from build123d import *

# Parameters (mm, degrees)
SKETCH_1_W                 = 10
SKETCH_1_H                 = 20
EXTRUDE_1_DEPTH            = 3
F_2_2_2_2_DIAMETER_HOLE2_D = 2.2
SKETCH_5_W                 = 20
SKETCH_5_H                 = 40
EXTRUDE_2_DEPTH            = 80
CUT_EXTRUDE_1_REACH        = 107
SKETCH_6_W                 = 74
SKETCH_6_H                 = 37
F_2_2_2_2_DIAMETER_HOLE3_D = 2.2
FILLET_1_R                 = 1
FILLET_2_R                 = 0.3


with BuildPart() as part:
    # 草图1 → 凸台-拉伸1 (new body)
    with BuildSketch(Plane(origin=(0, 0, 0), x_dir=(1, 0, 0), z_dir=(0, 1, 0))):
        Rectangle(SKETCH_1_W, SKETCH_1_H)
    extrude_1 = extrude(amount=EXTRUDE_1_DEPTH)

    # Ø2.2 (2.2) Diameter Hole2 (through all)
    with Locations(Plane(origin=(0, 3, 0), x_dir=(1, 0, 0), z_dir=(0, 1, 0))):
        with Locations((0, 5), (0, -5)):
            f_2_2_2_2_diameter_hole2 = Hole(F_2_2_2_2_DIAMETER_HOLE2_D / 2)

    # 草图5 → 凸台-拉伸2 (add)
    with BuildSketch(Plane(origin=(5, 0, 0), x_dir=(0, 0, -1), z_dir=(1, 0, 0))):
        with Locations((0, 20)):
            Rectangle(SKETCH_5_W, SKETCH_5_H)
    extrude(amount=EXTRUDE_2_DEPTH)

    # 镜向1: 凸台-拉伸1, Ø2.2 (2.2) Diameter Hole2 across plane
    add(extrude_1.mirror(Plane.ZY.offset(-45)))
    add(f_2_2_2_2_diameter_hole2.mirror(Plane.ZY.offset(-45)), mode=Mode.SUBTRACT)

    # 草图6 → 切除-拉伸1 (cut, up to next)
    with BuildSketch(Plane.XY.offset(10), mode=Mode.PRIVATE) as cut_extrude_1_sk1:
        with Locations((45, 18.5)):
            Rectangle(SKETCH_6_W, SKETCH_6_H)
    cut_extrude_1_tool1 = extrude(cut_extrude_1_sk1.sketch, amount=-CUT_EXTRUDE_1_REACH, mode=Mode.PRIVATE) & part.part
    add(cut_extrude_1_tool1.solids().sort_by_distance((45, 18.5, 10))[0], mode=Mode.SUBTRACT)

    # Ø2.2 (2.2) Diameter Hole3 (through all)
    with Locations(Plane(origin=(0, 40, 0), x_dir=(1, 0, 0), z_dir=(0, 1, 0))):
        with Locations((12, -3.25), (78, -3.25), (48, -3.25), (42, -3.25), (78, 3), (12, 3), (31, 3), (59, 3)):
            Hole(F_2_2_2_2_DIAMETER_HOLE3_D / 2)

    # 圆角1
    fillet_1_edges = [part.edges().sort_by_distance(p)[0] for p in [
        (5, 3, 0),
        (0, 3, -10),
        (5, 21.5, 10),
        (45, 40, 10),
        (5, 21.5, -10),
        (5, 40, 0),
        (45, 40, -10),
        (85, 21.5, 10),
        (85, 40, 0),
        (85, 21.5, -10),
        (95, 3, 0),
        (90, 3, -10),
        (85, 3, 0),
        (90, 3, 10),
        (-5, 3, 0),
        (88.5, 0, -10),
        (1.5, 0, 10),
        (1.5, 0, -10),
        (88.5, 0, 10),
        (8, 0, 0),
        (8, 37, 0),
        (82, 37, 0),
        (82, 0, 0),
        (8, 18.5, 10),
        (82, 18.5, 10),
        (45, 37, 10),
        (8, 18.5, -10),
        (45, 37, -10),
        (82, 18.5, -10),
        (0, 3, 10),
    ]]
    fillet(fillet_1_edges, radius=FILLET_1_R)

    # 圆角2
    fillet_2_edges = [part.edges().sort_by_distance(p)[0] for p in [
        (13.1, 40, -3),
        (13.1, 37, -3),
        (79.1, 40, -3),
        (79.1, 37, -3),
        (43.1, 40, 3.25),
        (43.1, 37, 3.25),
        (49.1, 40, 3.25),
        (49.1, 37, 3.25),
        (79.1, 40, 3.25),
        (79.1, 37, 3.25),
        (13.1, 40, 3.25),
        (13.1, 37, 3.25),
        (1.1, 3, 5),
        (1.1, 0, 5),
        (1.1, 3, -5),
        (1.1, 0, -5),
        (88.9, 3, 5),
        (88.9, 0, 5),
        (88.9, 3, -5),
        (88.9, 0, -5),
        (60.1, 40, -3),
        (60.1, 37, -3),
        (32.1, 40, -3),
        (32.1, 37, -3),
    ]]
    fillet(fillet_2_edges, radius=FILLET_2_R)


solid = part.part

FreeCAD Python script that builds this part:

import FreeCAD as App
import Part
import Sketcher

V = App.Vector


def edges_at(feature, points):
    """Names of the edges that pass closest to the given points."""
    edges = feature.Shape.Edges
    near = lambda p: min(range(len(edges)), key=lambda i: edges[i].distToShape(Part.Vertex(*p))[0])
    return sorted({f"Edge{near(p) + 1}" for p in points})

doc = App.newDocument("Part")
body = doc.addObject("PartDesign::Body", "Body")

# Sketch on XZ plane
sketch1 = body.newObject("Sketcher::SketchObject", "Sketch")
sketch1.AttachmentSupport = (doc.getObject("XZ_Plane"), [""])
sketch1.MapMode = "FlatFace"
sketch1.addGeometry(Part.LineSegment(V(-5, -10, 0), V(-5, 10, 0)), False)
sketch1.addGeometry(Part.LineSegment(V(-5, 10, 0), V(5, 10, 0)), False)
sketch1.addGeometry(Part.LineSegment(V(5, 10, 0), V(5, -10, 0)), False)
sketch1.addGeometry(Part.LineSegment(V(5, -10, 0), V(-5, -10, 0)), False)
sketch1.addConstraint(Sketcher.Constraint("Coincident", 0, 2, 1, 1))
sketch1.addConstraint(Sketcher.Constraint("Coincident", 1, 2, 2, 1))
sketch1.addConstraint(Sketcher.Constraint("Coincident", 2, 2, 3, 1))
sketch1.addConstraint(Sketcher.Constraint("Coincident", 3, 2, 0, 1))
sketch1.addConstraint(Sketcher.Constraint("Vertical", 0))
sketch1.addConstraint(Sketcher.Constraint("Horizontal", 1))
sketch1.addConstraint(Sketcher.Constraint("Vertical", 2))
sketch1.addConstraint(Sketcher.Constraint("Horizontal", 3))
sketch1.addConstraint(Sketcher.Constraint("Symmetric", 0, 2, 2, 2, -1, 1))
sketch1.addConstraint(Sketcher.Constraint("DistanceX", 1, 1, 1, 2, 10.0))
sketch1.addConstraint(Sketcher.Constraint("DistanceY", 0, 1, 0, 2, 20.0))
pad1 = body.newObject("PartDesign::Pad", "Pad")
pad1.Profile = sketch1
pad1.Length = 3
pad1.Reversed = True

# Sketch on XZ plane
sketch2 = body.newObject("Sketcher::SketchObject", "Sketch001")
sketch2.AttachmentSupport = (doc.getObject("XZ_Plane"), [""])
sketch2.MapMode = "FlatFace"
sketch2.AttachmentOffset = App.Placement(V(0, 0, -3), App.Rotation())
sketch2.addGeometry(Part.Circle(V(0, -5, 0), V(0, 0, 1), 1.1), False)
sketch2.addGeometry(Part.Circle(V(0, 5, 0), V(0, 0, 1), 1.1), False)
sketch2.addConstraint(Sketcher.Constraint("Equal", 0, 1))
sketch2.addConstraint(Sketcher.Constraint("Symmetric", 0, 3, 1, 3, -1, 1))
sketch2.addConstraint(Sketcher.Constraint("PointOnObject", 0, 3, -2))
sketch2.addConstraint(Sketcher.Constraint("Diameter", 0, 2.2))
sketch2.addConstraint(Sketcher.Constraint("DistanceY", 0, 3, -1, 1, 5.0))
doc.recompute()
hole = body.newObject("PartDesign::Hole", "Hole")
hole.Profile = sketch2
hole.ThreadType = "None"
hole.Diameter = 2.2
hole.DepthType = "ThroughAll"
hole.Reversed = True

# Sketch on YZ plane
sketch3 = body.newObject("Sketcher::SketchObject", "Sketch002")
sketch3.AttachmentSupport = (doc.getObject("YZ_Plane"), [""])
sketch3.MapMode = "FlatFace"
sketch3.AttachmentOffset = App.Placement(V(0, 0, 5), App.Rotation())
sketch3.addGeometry(Part.LineSegment(V(40, 10, 0), V(0, 10, 0)), False)
sketch3.addGeometry(Part.LineSegment(V(0, 10, 0), V(0, -10, 0)), False)
sketch3.addGeometry(Part.LineSegment(V(0, -10, 0), V(40, -10, 0)), False)
sketch3.addGeometry(Part.LineSegment(V(40, -10, 0), V(40, 10, 0)), False)
sketch3.addConstraint(Sketcher.Constraint("Coincident", 0, 2, 1, 1))
sketch3.addConstraint(Sketcher.Constraint("Coincident", 1, 2, 2, 1))
sketch3.addConstraint(Sketcher.Constraint("Coincident", 2, 2, 3, 1))
sketch3.addConstraint(Sketcher.Constraint("Coincident", 3, 2, 0, 1))
sketch3.addConstraint(Sketcher.Constraint("Horizontal", 0))
sketch3.addConstraint(Sketcher.Constraint("Vertical", 1))
sketch3.addConstraint(Sketcher.Constraint("Horizontal", 2))
sketch3.addConstraint(Sketcher.Constraint("Vertical", 3))
sketch3.addConstraint(Sketcher.Constraint("Symmetric", 0, 2, 1, 2, -1, 1))
sketch3.addConstraint(Sketcher.Constraint("DistanceX", 0, 2, 0, 1, 40.0))
sketch3.addConstraint(Sketcher.Constraint("DistanceY", 1, 2, 1, 1, 20.0))
pad2 = body.newObject("PartDesign::Pad", "Pad001")
pad2.Profile = sketch3
pad2.Length = 80
doc.recompute()

datumplane = body.newObject("PartDesign::Plane", "DatumPlane")
datumplane.AttachmentSupport = (doc.getObject("YZ_Plane"), [""])
datumplane.MapMode = "FlatFace"
datumplane.AttachmentOffset = App.Placement(V(0, 0, 45), App.Rotation())
mirrored = body.newObject("PartDesign::Mirrored", "Mirrored")
mirrored.Originals = [pad1, hole]
mirrored.MirrorPlane = (datumplane, [""])
body.Tip = mirrored

# Sketch on XY plane
sketch4 = body.newObject("Sketcher::SketchObject", "Sketch003")
sketch4.AttachmentSupport = (doc.getObject("XY_Plane"), [""])
sketch4.MapMode = "FlatFace"
sketch4.AttachmentOffset = App.Placement(V(0, 0, 10), App.Rotation())
sketch4.addGeometry(Part.LineSegment(V(8, 37, 0), V(8, 0, 0)), False)
sketch4.addGeometry(Part.LineSegment(V(8, 0, 0), V(82, 0, 0)), False)
sketch4.addGeometry(Part.LineSegment(V(82, 0, 0), V(82, 37, 0)), False)
sketch4.addGeometry(Part.LineSegment(V(82, 37, 0), V(8, 37, 0)), False)
sketch4.addConstraint(Sketcher.Constraint("Coincident", 0, 2, 1, 1))
sketch4.addConstraint(Sketcher.Constraint("Coincident", 1, 2, 2, 1))
sketch4.addConstraint(Sketcher.Constraint("Coincident", 2, 2, 3, 1))
sketch4.addConstraint(Sketcher.Constraint("Coincident", 3, 2, 0, 1))
sketch4.addConstraint(Sketcher.Constraint("Vertical", 0))
sketch4.addConstraint(Sketcher.Constraint("Horizontal", 1))
sketch4.addConstraint(Sketcher.Constraint("Vertical", 2))
sketch4.addConstraint(Sketcher.Constraint("Horizontal", 3))
sketch4.addConstraint(Sketcher.Constraint("PointOnObject", 0, 2, -1))
sketch4.addConstraint(Sketcher.Constraint("DistanceX", 1, 1, 1, 2, 74.0))
sketch4.addConstraint(Sketcher.Constraint("DistanceY", 0, 2, 0, 1, 37.0))
sketch4.addConstraint(Sketcher.Constraint("DistanceX", -1, 1, 0, 2, 8.0))
pocket1 = body.newObject("PartDesign::Pocket", "Pocket")
pocket1.Profile = sketch4
pocket1.Type = "UpToFirst"

# Sketch on XZ plane
sketch5 = body.newObject("Sketcher::SketchObject", "Sketch004")
sketch5.AttachmentSupport = (doc.getObject("XZ_Plane"), [""])
sketch5.MapMode = "FlatFace"
sketch5.AttachmentOffset = App.Placement(V(0, 0, -40), App.Rotation())
sketch5.addGeometry(Part.Circle(V(12, 3.25, 0), V(0, 0, 1), 1.1), False)
sketch5.addGeometry(Part.Circle(V(78, 3.25, 0), V(0, 0, 1), 1.1), False)
sketch5.addGeometry(Part.Circle(V(48, 3.25, 0), V(0, 0, 1), 1.1), False)
sketch5.addGeometry(Part.Circle(V(42, 3.25, 0), V(0, 0, 1), 1.1), False)
sketch5.addGeometry(Part.Circle(V(78, -3, 0), V(0, 0, 1), 1.1), False)
sketch5.addGeometry(Part.Circle(V(12, -3, 0), V(0, 0, 1), 1.1), False)
sketch5.addGeometry(Part.Circle(V(31, -3, 0), V(0, 0, 1), 1.1), False)
sketch5.addGeometry(Part.Circle(V(59, -3, 0), V(0, 0, 1), 1.1), False)
sketch5.addConstraint(Sketcher.Constraint("Equal", 0, 1))
sketch5.addConstraint(Sketcher.Constraint("Equal", 1, 2))
sketch5.addConstraint(Sketcher.Constraint("Equal", 2, 3))
sketch5.addConstraint(Sketcher.Constraint("Equal", 3, 4))
sketch5.addConstraint(Sketcher.Constraint("Equal", 4, 5))
sketch5.addConstraint(Sketcher.Constraint("Equal", 5, 6))
sketch5.addConstraint(Sketcher.Constraint("Equal", 6, 7))
sketch5.addConstraint(Sketcher.Constraint("Horizontal", 0, 3, 1, 3))
sketch5.addConstraint(Sketcher.Constraint("Horizontal", 1, 3, 2, 3))
sketch5.addConstraint(Sketcher.Constraint("Horizontal", 2, 3, 3, 3))
sketch5.addConstraint(Sketcher.Constraint("Horizontal", 4, 3, 5, 3))
sketch5.addConstraint(Sketcher.Constraint("Horizontal", 5, 3, 6, 3))
sketch5.addConstraint(Sketcher.Constraint("Horizontal", 6, 3, 7, 3))
sketch5.addConstraint(Sketcher.Constraint("Vertical", 1, 3, 4, 3))
sketch5.addConstraint(Sketcher.Constraint("Vertical", 0, 3, 5, 3))
sketch5.addConstraint(Sketcher.Constraint("Diameter", 0, 2.2))
sketch5.addConstraint(Sketcher.Constraint("DistanceX", -1, 1, 0, 3, 12.0))
sketch5.addConstraint(Sketcher.Constraint("DistanceX", -1, 1, 1, 3, 78.0))
sketch5.addConstraint(Sketcher.Constraint("DistanceX", -1, 1, 2, 3, 48.0))
sketch5.addConstraint(Sketcher.Constraint("DistanceX", -1, 1, 3, 3, 42.0))
sketch5.addConstraint(Sketcher.Constraint("DistanceY", 4, 3, -1, 1, 3.0))
sketch5.addConstraint(Sketcher.Constraint("DistanceX", -1, 1, 6, 3, 31.0))
sketch5.addConstraint(Sketcher.Constraint("DistanceX", -1, 1, 7, 3, 59.0))
sketch5.addConstraint(Sketcher.Constraint("DistanceY", -1, 1, 0, 3, 3.25))
doc.recompute()
hole2 = body.newObject("PartDesign::Hole", "Hole001")
hole2.Profile = sketch5
hole2.ThreadType = "None"
hole2.Diameter = 2.2
hole2.DepthType = "ThroughAll"
hole2.Reversed = True
doc.recompute()

fillet = body.newObject("PartDesign::Fillet", "Fillet")
fillet.Base = (hole2, edges_at(hole2, [
    (5, 3, 0),
    (0, 3, -10),
    (5, 21.5, 10),
    (45, 40, 10),
    (5, 21.5, -10),
    (5, 40, 0),
    (45, 40, -10),
    (85, 21.5, 10),
    (85, 40, 0),
    (85, 21.5, -10),
    (95, 3, 0),
    (90, 3, -10),
    (85, 3, 0),
    (90, 3, 10),
    (-5, 3, 0),
    (88.5, 0, -10),
    (1.5, 0, 10),
    (1.5, 0, -10),
    (88.5, 0, 10),
    (8, 0, 0),
    (8, 37, 0),
    (82, 37, 0),
    (82, 0, 0),
    (8, 18.5, 10),
    (82, 18.5, 10),
    (45, 37, 10),
    (8, 18.5, -10),
    (45, 37, -10),
    (82, 18.5, -10),
    (0, 3, 10),
]))
fillet.Radius = 1
doc.recompute()

fillet2 = body.newObject("PartDesign::Fillet", "Fillet001")
fillet2.Base = (fillet, edges_at(fillet, [
    (13.1, 40, -3),
    (13.1, 37, -3),
    (79.1, 40, -3),
    (79.1, 37, -3),
    (43.1, 40, 3.25),
    (43.1, 37, 3.25),
    (49.1, 40, 3.25),
    (49.1, 37, 3.25),
    (79.1, 40, 3.25),
    (79.1, 37, 3.25),
    (13.1, 40, 3.25),
    (13.1, 37, 3.25),
    (1.1, 3, 5),
    (1.1, 0, 5),
    (1.1, 3, -5),
    (1.1, 0, -5),
    (88.9, 3, 5),
    (88.9, 0, 5),
    (88.9, 3, -5),
    (88.9, 0, -5),
    (60.1, 40, -3),
    (60.1, 37, -3),
    (32.1, 40, -3),
    (32.1, 37, -3),
]))
fillet2.Radius = 0.3

doc.recompute()
